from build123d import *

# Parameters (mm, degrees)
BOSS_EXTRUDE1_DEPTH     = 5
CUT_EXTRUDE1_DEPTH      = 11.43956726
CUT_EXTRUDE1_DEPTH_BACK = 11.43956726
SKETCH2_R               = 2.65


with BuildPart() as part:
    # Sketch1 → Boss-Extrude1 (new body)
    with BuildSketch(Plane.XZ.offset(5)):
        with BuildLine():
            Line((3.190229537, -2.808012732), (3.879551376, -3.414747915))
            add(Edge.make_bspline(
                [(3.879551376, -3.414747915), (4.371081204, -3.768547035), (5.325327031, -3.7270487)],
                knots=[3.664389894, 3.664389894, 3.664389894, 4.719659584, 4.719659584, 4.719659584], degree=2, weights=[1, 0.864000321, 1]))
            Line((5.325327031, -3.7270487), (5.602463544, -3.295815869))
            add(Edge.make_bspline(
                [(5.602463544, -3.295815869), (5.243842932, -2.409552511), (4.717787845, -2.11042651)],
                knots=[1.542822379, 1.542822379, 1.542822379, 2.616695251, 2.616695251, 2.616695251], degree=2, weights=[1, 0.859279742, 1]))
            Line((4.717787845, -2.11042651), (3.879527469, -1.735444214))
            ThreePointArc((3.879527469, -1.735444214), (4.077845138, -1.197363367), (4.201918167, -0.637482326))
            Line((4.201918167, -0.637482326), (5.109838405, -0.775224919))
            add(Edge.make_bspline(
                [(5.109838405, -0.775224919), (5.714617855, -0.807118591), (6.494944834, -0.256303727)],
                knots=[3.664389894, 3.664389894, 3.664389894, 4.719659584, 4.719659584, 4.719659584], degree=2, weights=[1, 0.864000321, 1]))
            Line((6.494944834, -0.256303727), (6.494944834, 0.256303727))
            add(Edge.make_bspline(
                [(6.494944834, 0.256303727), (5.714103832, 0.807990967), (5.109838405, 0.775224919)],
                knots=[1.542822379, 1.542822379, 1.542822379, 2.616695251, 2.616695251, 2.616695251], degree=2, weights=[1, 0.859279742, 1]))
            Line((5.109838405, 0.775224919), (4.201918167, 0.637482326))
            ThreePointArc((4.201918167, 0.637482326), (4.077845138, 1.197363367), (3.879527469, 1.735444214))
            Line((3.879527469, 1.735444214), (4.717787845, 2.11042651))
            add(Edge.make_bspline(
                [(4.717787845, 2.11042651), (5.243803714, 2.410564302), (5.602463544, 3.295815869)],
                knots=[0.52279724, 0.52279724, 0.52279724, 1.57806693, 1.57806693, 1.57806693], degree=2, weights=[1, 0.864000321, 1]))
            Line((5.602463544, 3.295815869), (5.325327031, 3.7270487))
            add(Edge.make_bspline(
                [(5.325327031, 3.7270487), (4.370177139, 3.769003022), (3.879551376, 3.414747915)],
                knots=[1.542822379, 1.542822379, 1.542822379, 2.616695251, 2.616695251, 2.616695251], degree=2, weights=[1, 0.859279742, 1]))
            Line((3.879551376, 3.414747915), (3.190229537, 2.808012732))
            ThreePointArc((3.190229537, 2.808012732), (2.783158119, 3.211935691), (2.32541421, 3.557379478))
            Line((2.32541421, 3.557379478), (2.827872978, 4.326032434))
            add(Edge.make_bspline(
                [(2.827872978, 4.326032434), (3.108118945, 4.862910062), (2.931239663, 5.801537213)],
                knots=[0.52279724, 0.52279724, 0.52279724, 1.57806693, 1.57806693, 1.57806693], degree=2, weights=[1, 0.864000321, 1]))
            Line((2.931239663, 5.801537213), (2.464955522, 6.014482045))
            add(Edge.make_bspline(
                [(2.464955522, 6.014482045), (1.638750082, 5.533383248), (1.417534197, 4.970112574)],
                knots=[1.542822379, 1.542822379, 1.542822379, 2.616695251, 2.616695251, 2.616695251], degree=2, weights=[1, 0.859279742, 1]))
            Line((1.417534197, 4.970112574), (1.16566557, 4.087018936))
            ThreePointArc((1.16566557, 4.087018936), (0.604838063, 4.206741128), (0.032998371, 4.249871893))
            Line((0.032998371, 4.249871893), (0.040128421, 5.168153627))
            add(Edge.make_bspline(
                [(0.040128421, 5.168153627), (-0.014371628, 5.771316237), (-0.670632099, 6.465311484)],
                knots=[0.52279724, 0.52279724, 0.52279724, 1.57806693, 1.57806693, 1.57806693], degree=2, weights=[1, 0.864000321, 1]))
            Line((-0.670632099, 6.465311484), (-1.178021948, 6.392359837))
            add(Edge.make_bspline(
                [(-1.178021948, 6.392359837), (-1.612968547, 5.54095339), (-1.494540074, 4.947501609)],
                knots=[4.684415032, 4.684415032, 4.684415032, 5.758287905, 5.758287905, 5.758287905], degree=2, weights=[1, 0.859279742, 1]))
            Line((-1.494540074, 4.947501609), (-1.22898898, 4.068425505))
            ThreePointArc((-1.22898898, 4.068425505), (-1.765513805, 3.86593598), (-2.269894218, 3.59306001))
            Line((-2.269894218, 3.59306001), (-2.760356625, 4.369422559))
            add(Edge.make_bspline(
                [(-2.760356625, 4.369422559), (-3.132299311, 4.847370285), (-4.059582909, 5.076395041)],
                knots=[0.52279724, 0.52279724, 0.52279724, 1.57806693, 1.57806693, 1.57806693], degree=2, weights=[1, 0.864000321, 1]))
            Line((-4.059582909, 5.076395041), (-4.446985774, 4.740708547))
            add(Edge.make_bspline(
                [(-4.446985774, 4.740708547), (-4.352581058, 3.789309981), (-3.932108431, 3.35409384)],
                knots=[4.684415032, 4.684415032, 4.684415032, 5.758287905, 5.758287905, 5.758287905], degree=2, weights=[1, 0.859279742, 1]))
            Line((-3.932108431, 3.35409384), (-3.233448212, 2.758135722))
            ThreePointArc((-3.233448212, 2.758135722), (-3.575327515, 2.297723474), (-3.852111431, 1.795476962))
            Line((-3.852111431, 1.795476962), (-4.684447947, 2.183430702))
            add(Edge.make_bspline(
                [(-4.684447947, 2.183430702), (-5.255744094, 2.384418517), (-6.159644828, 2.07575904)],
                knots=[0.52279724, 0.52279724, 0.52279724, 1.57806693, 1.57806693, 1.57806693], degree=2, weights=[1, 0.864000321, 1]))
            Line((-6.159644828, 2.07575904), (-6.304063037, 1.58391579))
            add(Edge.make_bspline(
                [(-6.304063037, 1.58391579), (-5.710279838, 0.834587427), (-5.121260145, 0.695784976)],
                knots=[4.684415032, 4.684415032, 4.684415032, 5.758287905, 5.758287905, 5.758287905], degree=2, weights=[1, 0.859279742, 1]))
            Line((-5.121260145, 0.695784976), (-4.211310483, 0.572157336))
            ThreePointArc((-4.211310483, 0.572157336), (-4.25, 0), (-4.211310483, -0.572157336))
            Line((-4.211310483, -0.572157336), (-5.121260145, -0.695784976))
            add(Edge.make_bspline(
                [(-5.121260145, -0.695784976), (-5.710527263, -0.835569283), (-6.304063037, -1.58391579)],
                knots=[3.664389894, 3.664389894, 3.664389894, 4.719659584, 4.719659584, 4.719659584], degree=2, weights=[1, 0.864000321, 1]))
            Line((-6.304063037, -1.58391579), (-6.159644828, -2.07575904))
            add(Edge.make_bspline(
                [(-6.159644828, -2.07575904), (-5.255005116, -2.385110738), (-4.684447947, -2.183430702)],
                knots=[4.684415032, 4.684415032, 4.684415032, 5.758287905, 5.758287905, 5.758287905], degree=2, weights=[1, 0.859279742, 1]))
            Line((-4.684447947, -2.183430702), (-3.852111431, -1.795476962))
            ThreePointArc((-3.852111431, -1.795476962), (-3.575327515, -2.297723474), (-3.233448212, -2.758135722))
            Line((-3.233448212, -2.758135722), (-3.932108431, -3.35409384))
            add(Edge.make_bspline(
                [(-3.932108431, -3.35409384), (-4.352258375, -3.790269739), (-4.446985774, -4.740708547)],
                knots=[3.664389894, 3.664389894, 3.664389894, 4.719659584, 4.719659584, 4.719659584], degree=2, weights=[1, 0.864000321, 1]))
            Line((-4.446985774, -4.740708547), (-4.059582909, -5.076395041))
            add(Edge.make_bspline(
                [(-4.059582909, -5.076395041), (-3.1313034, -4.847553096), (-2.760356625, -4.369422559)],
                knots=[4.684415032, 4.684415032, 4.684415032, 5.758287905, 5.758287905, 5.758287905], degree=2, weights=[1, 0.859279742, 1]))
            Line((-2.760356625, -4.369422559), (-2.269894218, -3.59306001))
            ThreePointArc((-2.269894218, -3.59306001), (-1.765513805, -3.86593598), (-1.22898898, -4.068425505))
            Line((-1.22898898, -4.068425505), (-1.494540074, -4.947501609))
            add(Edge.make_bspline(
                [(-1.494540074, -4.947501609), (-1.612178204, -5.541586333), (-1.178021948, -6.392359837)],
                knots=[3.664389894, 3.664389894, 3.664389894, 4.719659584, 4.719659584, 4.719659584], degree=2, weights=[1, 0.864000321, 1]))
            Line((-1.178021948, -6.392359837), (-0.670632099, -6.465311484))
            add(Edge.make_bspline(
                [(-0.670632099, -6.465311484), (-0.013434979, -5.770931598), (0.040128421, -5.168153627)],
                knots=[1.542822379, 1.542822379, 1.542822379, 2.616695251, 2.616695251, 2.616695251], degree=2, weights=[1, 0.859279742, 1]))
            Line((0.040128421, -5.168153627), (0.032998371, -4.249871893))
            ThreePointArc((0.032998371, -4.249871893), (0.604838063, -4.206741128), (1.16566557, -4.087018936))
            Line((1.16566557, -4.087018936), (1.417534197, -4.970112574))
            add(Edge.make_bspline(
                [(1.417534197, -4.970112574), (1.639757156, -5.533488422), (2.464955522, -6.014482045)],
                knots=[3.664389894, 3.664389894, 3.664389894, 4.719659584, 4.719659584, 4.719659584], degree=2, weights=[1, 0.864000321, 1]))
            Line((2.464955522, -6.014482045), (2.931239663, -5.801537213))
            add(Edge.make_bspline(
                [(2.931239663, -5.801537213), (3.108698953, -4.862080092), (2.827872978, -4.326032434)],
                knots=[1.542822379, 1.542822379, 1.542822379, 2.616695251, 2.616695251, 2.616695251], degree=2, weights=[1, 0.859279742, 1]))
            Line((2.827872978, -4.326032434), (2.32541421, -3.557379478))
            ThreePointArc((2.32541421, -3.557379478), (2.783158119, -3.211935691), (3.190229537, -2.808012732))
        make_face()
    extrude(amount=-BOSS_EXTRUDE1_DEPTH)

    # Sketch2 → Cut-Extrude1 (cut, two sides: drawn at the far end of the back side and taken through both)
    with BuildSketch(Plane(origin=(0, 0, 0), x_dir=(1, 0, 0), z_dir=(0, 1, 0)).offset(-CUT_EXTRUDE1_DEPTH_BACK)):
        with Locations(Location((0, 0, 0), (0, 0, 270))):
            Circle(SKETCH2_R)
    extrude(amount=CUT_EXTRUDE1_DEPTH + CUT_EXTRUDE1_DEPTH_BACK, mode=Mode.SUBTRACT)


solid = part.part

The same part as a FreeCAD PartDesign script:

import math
import FreeCAD as App
import Part
import Sketcher

doc = App.newDocument("Part")
body = doc.addObject("PartDesign::Body", "Body")

# Sketch on XZ plane
sketch1 = doc.addObject("Sketcher::SketchObject", "Sketch")
body.addObject(sketch1)
sketch1.AttachmentSupport = (doc.XZ_Plane, [""])
sketch1.MapMode = "FlatFace"
sketch1.AttachmentOffset = App.Placement(App.Vector(0, 0, 5), App.Rotation())
sketch1.addGeometry([
    Part.LineSegment(App.Vector(3.19023, -2.808013, 0), App.Vector(3.879551, -3.414748, 0)),  # 0
    Part.BSplineCurve([App.Vector(3.879551, -3.414748, 0), App.Vector(4.371081, -3.768547, 0), App.Vector(5.325327, -3.727049, 0)], [3, 3], [3.664389894, 4.719659584], False, 2, [1, 0.864000321, 1], False),  # 1
    Part.LineSegment(App.Vector(5.325327, -3.727049, 0), App.Vector(5.602464, -3.295816, 0)),  # 2
    Part.BSplineCurve([App.Vector(5.602464, -3.295816, 0), App.Vector(5.243843, -2.409553, 0), App.Vector(4.717788, -2.110427, 0)], [3, 3], [1.542822379, 2.616695251], False, 2, [1, 0.859279742, 1], False),  # 3
    Part.LineSegment(App.Vector(4.717788, -2.110427, 0), App.Vector(3.879527, -1.735444, 0)),  # 4
    Part.ArcOfCircle(Part.Circle(App.Vector(0, 0, 0), App.Vector(0, 0, 1), 4.25), math.radians(-24.100587), math.radians(-8.626685)),  # 5
    Part.LineSegment(App.Vector(4.201918, -0.637482, 0), App.Vector(5.109838, -0.775225, 0)),  # 6
    Part.BSplineCurve([App.Vector(5.109838, -0.775225, 0), App.Vector(5.714618, -0.807119, 0), App.Vector(6.494945, -0.256304, 0)], [3, 3], [3.664389894, 4.719659584], False, 2, [1, 0.864000321, 1], False),  # 7
    Part.LineSegment(App.Vector(6.494945, -0.256304, 0), App.Vector(6.494945, 0.256304, 0)),  # 8
    Part.BSplineCurve([App.Vector(6.494945, 0.256304, 0), App.Vector(5.714104, 0.807991, 0), App.Vector(5.109838, 0.775225, 0)], [3, 3], [1.542822379, 2.616695251], False, 2, [1, 0.859279742, 1], False),  # 9
    Part.LineSegment(App.Vector(5.109838, 0.775225, 0), App.Vector(4.201918, 0.637482, 0)),  # 10
    Part.ArcOfCircle(Part.Circle(App.Vector(0, 0, 0), App.Vector(0, 0, 1), 4.25), math.radians(8.626685), math.radians(24.100587)),  # 11
    Part.LineSegment(App.Vector(3.879527, 1.735444, 0), App.Vector(4.717788, 2.110427, 0)),  # 12
    Part.BSplineCurve([App.Vector(4.717788, 2.110427, 0), App.Vector(5.243804, 2.410564, 0), App.Vector(5.602464, 3.295816, 0)], [3, 3], [0.52279724, 1.57806693], False, 2, [1, 0.864000321, 1], False),  # 13
    Part.LineSegment(App.Vector(5.602464, 3.295816, 0), App.Vector(5.325327, 3.727049, 0)),  # 14
    Part.BSplineCurve([App.Vector(5.325327, 3.727049, 0), App.Vector(4.370177, 3.769003, 0), App.Vector(3.879551, 3.414748, 0)], [3, 3], [1.542822379, 2.616695251], False, 2, [1, 0.859279742, 1], False),  # 15
    Part.LineSegment(App.Vector(3.879551, 3.414748, 0), App.Vector(3.19023, 2.808013, 0)),  # 16
    Part.ArcOfCircle(Part.Circle(App.Vector(0, 0, 0), App.Vector(0, 0, 1), 4.25), math.radians(41.353958), math.radians(56.82786)),  # 17
    Part.LineSegment(App.Vector(2.325414, 3.557379, 0), App.Vector(2.827873, 4.326032, 0)),  # 18
    Part.BSplineCurve([App.Vector(2.827873, 4.326032, 0), App.Vector(3.108119, 4.86291, 0), App.Vector(2.93124, 5.801537, 0)], [3, 3], [0.52279724, 1.57806693], False, 2, [1, 0.864000321, 1], False),  # 19
    Part.LineSegment(App.Vector(2.93124, 5.801537, 0), App.Vector(2.464956, 6.014482, 0)),  # 20
    Part.BSplineCurve([App.Vector(2.464956, 6.014482, 0), App.Vector(1.63875, 5.533383, 0), App.Vector(1.417534, 4.970113, 0)], [3, 3], [1.542822379, 2.616695251], False, 2, [1, 0.859279742, 1], False),  # 21
    Part.LineSegment(App.Vector(1.417534, 4.970113, 0), App.Vector(1.165666, 4.087019, 0)),  # 22
    Part.ArcOfCircle(Part.Circle(App.Vector(0, 0, 0), App.Vector(0, 0, 1), 4.25), math.radians(74.081231), math.radians(89.555133)),  # 23
    Part.LineSegment(App.Vector(0.032998, 4.249872, 0), App.Vector(0.040128, 5.168154, 0)),  # 24
    Part.BSplineCurve([App.Vector(0.040128, 5.168154, 0), App.Vector(-0.014372, 5.771316, 0), App.Vector(-0.670632, 6.465311, 0)], [3, 3], [0.52279724, 1.57806693], False, 2, [1, 0.864000321, 1], False),  # 25
    Part.LineSegment(App.Vector(-0.670632, 6.465311, 0), App.Vector(-1.178022, 6.39236, 0)),  # 26
    Part.BSplineCurve([App.Vector(-1.178022, 6.39236, 0), App.Vector(-1.612969, 5.540953, 0), App.Vector(-1.49454, 4.947502, 0)], [3, 3], [4.684415032, 5.758287905], False, 2, [1, 0.859279742, 1], False),  # 27
    Part.LineSegment(App.Vector(-1.49454, 4.947502, 0), App.Vector(-1.228989, 4.068426, 0)),  # 28
    Part.ArcOfCircle(Part.Circle(App.Vector(0, 0, 0), App.Vector(0, 0, 1), 4.25), math.radians(106.808504), math.radians(122.282405)),  # 29
    Part.LineSegment(App.Vector(-2.269894, 3.59306, 0), App.Vector(-2.760357, 4.369423, 0)),  # 30
    Part.BSplineCurve([App.Vector(-2.760357, 4.369423, 0), App.Vector(-3.132299, 4.84737, 0), App.Vector(-4.059583, 5.076395, 0)], [3, 3], [0.52279724, 1.57806693], False, 2, [1, 0.864000321, 1], False),  # 31
    Part.LineSegment(App.Vector(-4.059583, 5.076395, 0), App.Vector(-4.446986, 4.740709, 0)),  # 32
    Part.BSplineCurve([App.Vector(-4.446986, 4.740709, 0), App.Vector(-4.352581, 3.78931, 0), App.Vector(-3.932108, 3.354094, 0)], [3, 3], [4.684415032, 5.758287905], False, 2, [1, 0.859279742, 1], False),  # 33
    Part.LineSegment(App.Vector(-3.932108, 3.354094, 0), App.Vector(-3.233448, 2.758136, 0)),  # 34
    Part.ArcOfCircle(Part.Circle(App.Vector(0, 0, 0), App.Vector(0, 0, 1), 4.25), math.radians(139.535776), math.radians(155.009678)),  # 35
    Part.LineSegment(App.Vector(-3.852111, 1.795477, 0), App.Vector(-4.684448, 2.183431, 0)),  # 36
    Part.BSplineCurve([App.Vector(-4.684448, 2.183431, 0), App.Vector(-5.255744, 2.384419, 0), App.Vector(-6.159645, 2.075759, 0)], [3, 3], [0.52279724, 1.57806693], False, 2, [1, 0.864000321, 1], False),  # 37
    Part.LineSegment(App.Vector(-6.159645, 2.075759, 0), App.Vector(-6.304063, 1.583916, 0)),  # 38
    Part.BSplineCurve([App.Vector(-6.304063, 1.583916, 0), App.Vector(-5.71028, 0.834587, 0), App.Vector(-5.12126, 0.695785, 0)], [3, 3], [4.684415032, 5.758287905], False, 2, [1, 0.859279742, 1], False),  # 39
    Part.LineSegment(App.Vector(-5.12126, 0.695785, 0), App.Vector(-4.21131, 0.572157, 0)),  # 40
    Part.ArcOfCircle(Part.Circle(App.Vector(0, 0, 0), App.Vector(0, 0, 1), 4.25), math.radians(172.263049), math.radians(187.736951)),  # 41
    Part.LineSegment(App.Vector(-4.21131, -0.572157, 0), App.Vector(-5.12126, -0.695785, 0)),  # 42
    Part.BSplineCurve([App.Vector(-5.12126, -0.695785, 0), App.Vector(-5.710527, -0.835569, 0), App.Vector(-6.304063, -1.583916, 0)], [3, 3], [3.664389894, 4.719659584], False, 2, [1, 0.864000321, 1], False),  # 43
    Part.LineSegment(App.Vector(-6.304063, -1.583916, 0), App.Vector(-6.159645, -2.075759, 0)),  # 44
    Part.BSplineCurve([App.Vector(-6.159645, -2.075759, 0), App.Vector(-5.255005, -2.385111, 0), App.Vector(-4.684448, -2.183431, 0)], [3, 3], [4.684415032, 5.758287905], False, 2, [1, 0.859279742, 1], False),  # 45
    Part.LineSegment(App.Vector(-4.684448, -2.183431, 0), App.Vector(-3.852111, -1.795477, 0)),  # 46
    Part.ArcOfCircle(Part.Circle(App.Vector(0, 0, 0), App.Vector(0, 0, 1), 4.25), math.radians(-155.009678), math.radians(-139.535776)),  # 47
    Part.LineSegment(App.Vector(-3.233448, -2.758136, 0), App.Vector(-3.932108, -3.354094, 0)),  # 48
    Part.BSplineCurve([App.Vector(-3.932108, -3.354094, 0), App.Vector(-4.352258, -3.79027, 0), App.Vector(-4.446986, -4.740709, 0)], [3, 3], [3.664389894, 4.719659584], False, 2, [1, 0.864000321, 1], False),  # 49
    Part.LineSegment(App.Vector(-4.446986, -4.740709, 0), App.Vector(-4.059583, -5.076395, 0)),  # 50
    Part.BSplineCurve([App.Vector(-4.059583, -5.076395, 0), App.Vector(-3.131303, -4.847553, 0), App.Vector(-2.760357, -4.369423, 0)], [3, 3], [4.684415032, 5.758287905], False, 2, [1, 0.859279742, 1], False),  # 51
    Part.LineSegment(App.Vector(-2.760357, -4.369423, 0), App.Vector(-2.269894, -3.59306, 0)),  # 52
    Part.ArcOfCircle(Part.Circle(App.Vector(0, 0, 0), App.Vector(0, 0, 1), 4.25), math.radians(-122.282405), math.radians(-106.808504)),  # 53
    Part.LineSegment(App.Vector(-1.228989, -4.068426, 0), App.Vector(-1.49454, -4.947502, 0)),  # 54
    Part.BSplineCurve([App.Vector(-1.49454, -4.947502, 0), App.Vector(-1.612178, -5.541586, 0), App.Vector(-1.178022, -6.39236, 0)], [3, 3], [3.664389894, 4.719659584], False, 2, [1, 0.864000321, 1], False),  # 55
    Part.LineSegment(App.Vector(-1.178022, -6.39236, 0), App.Vector(-0.670632, -6.465311, 0)),  # 56
    Part.BSplineCurve([App.Vector(-0.670632, -6.465311, 0), App.Vector(-0.013435, -5.770932, 0), App.Vector(0.040128, -5.168154, 0)], [3, 3], [1.542822379, 2.616695251], False, 2, [1, 0.859279742, 1], False),  # 57
    Part.LineSegment(App.Vector(0.040128, -5.168154, 0), App.Vector(0.032998, -4.249872, 0)),  # 58
    Part.ArcOfCircle(Part.Circle(App.Vector(0, 0, 0), App.Vector(0, 0, 1), 4.25), math.radians(-89.555133), math.radians(-74.081231)),  # 59
    Part.LineSegment(App.Vector(1.165666, -4.087019, 0), App.Vector(1.417534, -4.970113, 0)),  # 60
    Part.BSplineCurve([App.Vector(1.417534, -4.970113, 0), App.Vector(1.639757, -5.533488, 0), App.Vector(2.464956, -6.014482, 0)], [3, 3], [3.664389894, 4.719659584], False, 2, [1, 0.864000321, 1], False),  # 61
    Part.LineSegment(App.Vector(2.464956, -6.014482, 0), App.Vector(2.93124, -5.801537, 0)),  # 62
    Part.BSplineCurve([App.Vector(2.93124, -5.801537, 0), App.Vector(3.108699, -4.86208, 0), App.Vector(2.827873, -4.326032, 0)], [3, 3], [1.542822379, 2.616695251], False, 2, [1, 0.859279742, 1], False),  # 63
    Part.LineSegment(App.Vector(2.827873, -4.326032, 0), App.Vector(2.325414, -3.557379, 0)),  # 64
    Part.ArcOfCircle(Part.Circle(App.Vector(0, 0, 0), App.Vector(0, 0, 1), 4.25), math.radians(-56.82786), math.radians(-41.353958)),  # 65
], False)
sketch1.addConstraint([
    Sketcher.Constraint("Block", 1),
    Sketcher.Constraint("Block", 3),
    Sketcher.Constraint("Block", 7),
    Sketcher.Constraint("Block", 9),
    Sketcher.Constraint("Block", 13),
    Sketcher.Constraint("Block", 15),
    Sketcher.Constraint("Block", 19),
    Sketcher.Constraint("Block", 21),
    Sketcher.Constraint("Block", 25),
    Sketcher.Constraint("Block", 27),
    Sketcher.Constraint("Block", 31),
    Sketcher.Constraint("Block", 33),
    Sketcher.Constraint("Block", 37),
    Sketcher.Constraint("Block", 39),
    Sketcher.Constraint("Block", 43),
    Sketcher.Constraint("Block", 45),
    Sketcher.Constraint("Block", 49),
    Sketcher.Constraint("Block", 51),
    Sketcher.Constraint("Block", 55),
    Sketcher.Constraint("Block", 57),
    Sketcher.Constraint("Block", 61),
    Sketcher.Constraint("Block", 63),
    Sketcher.Constraint("Coincident", 0, 2, 1, 1),
    Sketcher.Constraint("Coincident", 1, 2, 2, 1),
    Sketcher.Constraint("Coincident", 2, 2, 3, 1),
    Sketcher.Constraint("Coincident", 3, 2, 4, 1),
    Sketcher.Constraint("Coincident", 4, 2, 5, 1),
    Sketcher.Constraint("Coincident", 5, 2, 6, 1),
    Sketcher.Constraint("Coincident", 6, 2, 7, 1),
    Sketcher.Constraint("Coincident", 7, 2, 8, 1),
    Sketcher.Constraint("Coincident", 8, 2, 9, 1),
    Sketcher.Constraint("Coincident", 9, 2, 10, 1),
    Sketcher.Constraint("Coincident", 10, 2, 11, 1),
    Sketcher.Constraint("Coincident", 11, 2, 12, 1),
    Sketcher.Constraint("Coincident", 12, 2, 13, 1),
    Sketcher.Constraint("Coincident", 13, 2, 14, 1),
    Sketcher.Constraint("Coincident", 14, 2, 15, 1),
    Sketcher.Constraint("Coincident", 15, 2, 16, 1),
    Sketcher.Constraint("Coincident", 16, 2, 17, 1),
    Sketcher.Constraint("Coincident", 17, 2, 18, 1),
    Sketcher.Constraint("Coincident", 18, 2, 19, 1),
    Sketcher.Constraint("Coincident", 19, 2, 20, 1),
    Sketcher.Constraint("Coincident", 20, 2, 21, 1),
    Sketcher.Constraint("Coincident", 21, 2, 22, 1),
    Sketcher.Constraint("Coincident", 22, 2, 23, 1),
    Sketcher.Constraint("Coincident", 23, 2, 24, 1),
    Sketcher.Constraint("Coincident", 24, 2, 25, 1),
    Sketcher.Constraint("Coincident", 25, 2, 26, 1),
    Sketcher.Constraint("Coincident", 26, 2, 27, 1),
    Sketcher.Constraint("Coincident", 27, 2, 28, 1),
    Sketcher.Constraint("Coincident", 28, 2, 29, 1),
    Sketcher.Constraint("Coincident", 29, 2, 30, 1),
    Sketcher.Constraint("Coincident", 30, 2, 31, 1),
    Sketcher.Constraint("Coincident", 31, 2, 32, 1),
    Sketcher.Constraint("Coincident", 32, 2, 33, 1),
    Sketcher.Constraint("Coincident", 33, 2, 34, 1),
    Sketcher.Constraint("Coincident", 34, 2, 35, 1),
    Sketcher.Constraint("Coincident", 35, 2, 36, 1),
    Sketcher.Constraint("Coincident", 36, 2, 37, 1),
    Sketcher.Constraint("Coincident", 37, 2, 38, 1),
    Sketcher.Constraint("Coincident", 38, 2, 39, 1),
    Sketcher.Constraint("Coincident", 39, 2, 40, 1),
    Sketcher.Constraint("Coincident", 40, 2, 41, 1),
    Sketcher.Constraint("Coincident", 41, 2, 42, 1),
    Sketcher.Constraint("Coincident", 42, 2, 43, 1),
    Sketcher.Constraint("Coincident", 43, 2, 44, 1),
    Sketcher.Constraint("Coincident", 44, 2, 45, 1),
    Sketcher.Constraint("Coincident", 45, 2, 46, 1),
    Sketcher.Constraint("Coincident", 46, 2, 47, 1),
    Sketcher.Constraint("Coincident", 47, 2, 48, 1),
    Sketcher.Constraint("Coincident", 48, 2, 49, 1),
    Sketcher.Constraint("Coincident", 49, 2, 50, 1),
    Sketcher.Constraint("Coincident", 50, 2, 51, 1),
    Sketcher.Constraint("Coincident", 51, 2, 52, 1),
    Sketcher.Constraint("Coincident", 52, 2, 53, 1),
    Sketcher.Constraint("Coincident", 53, 2, 54, 1),
    Sketcher.Constraint("Coincident", 54, 2, 55, 1),
    Sketcher.Constraint("Coincident", 55, 2, 56, 1),
    Sketcher.Constraint("Coincident", 56, 2, 57, 1),
    Sketcher.Constraint("Coincident", 57, 2, 58, 1),
    Sketcher.Constraint("Coincident", 58, 2, 59, 1),
    Sketcher.Constraint("Coincident", 59, 2, 60, 1),
    Sketcher.Constraint("Coincident", 60, 2, 61, 1),
    Sketcher.Constraint("Coincident", 61, 2, 62, 1),
    Sketcher.Constraint("Coincident", 62, 2, 63, 1),
    Sketcher.Constraint("Coincident", 63, 2, 64, 1),
    Sketcher.Constraint("Coincident", 64, 2, 65, 1),
    Sketcher.Constraint("Coincident", 65, 2, 0, 1),
    Sketcher.Constraint("Coincident", 5, 3, -1, 1),
    Sketcher.Constraint("Coincident", 11, 3, -1, 1),
    Sketcher.Constraint("Coincident", 17, 3, -1, 1),
    Sketcher.Constraint("Coincident", 23, 3, -1, 1),
    Sketcher.Constraint("Coincident", 29, 3, -1, 1),
    Sketcher.Constraint("Coincident", 35, 3, -1, 1),
    Sketcher.Constraint("Coincident", 41, 3, -1, 1),
    Sketcher.Constraint("Coincident", 47, 3, -1, 1),
    Sketcher.Constraint("Coincident", 53, 3, -1, 1),
    Sketcher.Constraint("Coincident", 59, 3, -1, 1),
    Sketcher.Constraint("Coincident", 65, 3, -1, 1),
    Sketcher.Constraint("Equal", 5, 11),
    Sketcher.Constraint("Equal", 11, 17),
    Sketcher.Constraint("Equal", 17, 23),
    Sketcher.Constraint("Equal", 23, 29),
    Sketcher.Constraint("Equal", 29, 35),
    Sketcher.Constraint("Equal", 35, 41),
    Sketcher.Constraint("Equal", 41, 47),
    Sketcher.Constraint("Equal", 47, 53),
    Sketcher.Constraint("Equal", 53, 59),
    Sketcher.Constraint("Equal", 59, 65),
    Sketcher.Constraint("Vertical", 5, 2, 10, 2),
    Sketcher.Constraint("Vertical", 4, 2, 11, 2),
    Sketcher.Constraint("Vertical", 40, 2, 41, 2),
    Sketcher.Constraint("Vertical", 35, 2, 46, 2),
    Sketcher.Constraint("Vertical", 34, 2, 47, 2),
    Sketcher.Constraint("Vertical", 29, 2, 52, 2),
    Sketcher.Constraint("Vertical", 28, 2, 53, 2),
    Sketcher.Constraint("Vertical", 23, 2, 58, 2),
    Sketcher.Constraint("Vertical", 22, 2, 59, 2),
    Sketcher.Constraint("Vertical", 17, 2, 64, 2),
    Sketcher.Constraint("Vertical", 16, 2, 65, 2),
    Sketcher.Constraint("Radius", 5, 4.25),
    Sketcher.Constraint("DistanceX", -1, 1, 23, 2, 0.032998),
    Sketcher.Constraint("DistanceX", 36, 2, 34, 2, 1.451),
    Sketcher.Constraint("DistanceX", 11, 2, 14, 2, 1.4458),
    Sketcher.Constraint("DistanceY", 29, 2, 26, 2, 2.7993),
    Sketcher.Constraint("DistanceX", 40, 2, 35, 2, 0.359199),
    Sketcher.Constraint("DistanceY", 44, 2, 41, 2, 1.503602),
    Sketcher.Constraint("DistanceX", -1, 1, 5, 2, 4.201918),
    Sketcher.Constraint("DistanceX", -1, 1, 16, 2, 3.19023),
    Sketcher.Constraint("DistanceY", -1, 1, 17, 2, 3.557379),
    Sketcher.Constraint("DistanceY", -1, 1, 22, 2, 4.087019),
    Sketcher.Constraint("DistanceX", 28, 2, -1, 1, 1.228989),
])
pad1 = doc.addObject("PartDesign::Pad", "Pad")
body.addObject(pad1)
pad1.Profile = sketch1
pad1.Length = 5
pad1.Reversed = True

# Sketch on XZ plane
sketch2 = doc.addObject("Sketcher::SketchObject", "Sketch001")
body.addObject(sketch2)
sketch2.AttachmentSupport = (doc.XZ_Plane, [""])
sketch2.MapMode = "FlatFace"
sketch2.addGeometry(Part.Circle(App.Vector(0, 0, 0), App.Vector(0, 0, 1), 2.6), False)
sketch2.addConstraint([
    Sketcher.Constraint("Coincident", 0, 3, -1, 1),
    Sketcher.Constraint("Diameter", 0, 5.3),
])
pocket1 = doc.addObject("PartDesign::Pocket", "Pocket")
body.addObject(pocket1)
pocket1.Profile = sketch2
pocket1.Type = "ThroughAll"
pocket1.Midplane = True

doc.recompute()
